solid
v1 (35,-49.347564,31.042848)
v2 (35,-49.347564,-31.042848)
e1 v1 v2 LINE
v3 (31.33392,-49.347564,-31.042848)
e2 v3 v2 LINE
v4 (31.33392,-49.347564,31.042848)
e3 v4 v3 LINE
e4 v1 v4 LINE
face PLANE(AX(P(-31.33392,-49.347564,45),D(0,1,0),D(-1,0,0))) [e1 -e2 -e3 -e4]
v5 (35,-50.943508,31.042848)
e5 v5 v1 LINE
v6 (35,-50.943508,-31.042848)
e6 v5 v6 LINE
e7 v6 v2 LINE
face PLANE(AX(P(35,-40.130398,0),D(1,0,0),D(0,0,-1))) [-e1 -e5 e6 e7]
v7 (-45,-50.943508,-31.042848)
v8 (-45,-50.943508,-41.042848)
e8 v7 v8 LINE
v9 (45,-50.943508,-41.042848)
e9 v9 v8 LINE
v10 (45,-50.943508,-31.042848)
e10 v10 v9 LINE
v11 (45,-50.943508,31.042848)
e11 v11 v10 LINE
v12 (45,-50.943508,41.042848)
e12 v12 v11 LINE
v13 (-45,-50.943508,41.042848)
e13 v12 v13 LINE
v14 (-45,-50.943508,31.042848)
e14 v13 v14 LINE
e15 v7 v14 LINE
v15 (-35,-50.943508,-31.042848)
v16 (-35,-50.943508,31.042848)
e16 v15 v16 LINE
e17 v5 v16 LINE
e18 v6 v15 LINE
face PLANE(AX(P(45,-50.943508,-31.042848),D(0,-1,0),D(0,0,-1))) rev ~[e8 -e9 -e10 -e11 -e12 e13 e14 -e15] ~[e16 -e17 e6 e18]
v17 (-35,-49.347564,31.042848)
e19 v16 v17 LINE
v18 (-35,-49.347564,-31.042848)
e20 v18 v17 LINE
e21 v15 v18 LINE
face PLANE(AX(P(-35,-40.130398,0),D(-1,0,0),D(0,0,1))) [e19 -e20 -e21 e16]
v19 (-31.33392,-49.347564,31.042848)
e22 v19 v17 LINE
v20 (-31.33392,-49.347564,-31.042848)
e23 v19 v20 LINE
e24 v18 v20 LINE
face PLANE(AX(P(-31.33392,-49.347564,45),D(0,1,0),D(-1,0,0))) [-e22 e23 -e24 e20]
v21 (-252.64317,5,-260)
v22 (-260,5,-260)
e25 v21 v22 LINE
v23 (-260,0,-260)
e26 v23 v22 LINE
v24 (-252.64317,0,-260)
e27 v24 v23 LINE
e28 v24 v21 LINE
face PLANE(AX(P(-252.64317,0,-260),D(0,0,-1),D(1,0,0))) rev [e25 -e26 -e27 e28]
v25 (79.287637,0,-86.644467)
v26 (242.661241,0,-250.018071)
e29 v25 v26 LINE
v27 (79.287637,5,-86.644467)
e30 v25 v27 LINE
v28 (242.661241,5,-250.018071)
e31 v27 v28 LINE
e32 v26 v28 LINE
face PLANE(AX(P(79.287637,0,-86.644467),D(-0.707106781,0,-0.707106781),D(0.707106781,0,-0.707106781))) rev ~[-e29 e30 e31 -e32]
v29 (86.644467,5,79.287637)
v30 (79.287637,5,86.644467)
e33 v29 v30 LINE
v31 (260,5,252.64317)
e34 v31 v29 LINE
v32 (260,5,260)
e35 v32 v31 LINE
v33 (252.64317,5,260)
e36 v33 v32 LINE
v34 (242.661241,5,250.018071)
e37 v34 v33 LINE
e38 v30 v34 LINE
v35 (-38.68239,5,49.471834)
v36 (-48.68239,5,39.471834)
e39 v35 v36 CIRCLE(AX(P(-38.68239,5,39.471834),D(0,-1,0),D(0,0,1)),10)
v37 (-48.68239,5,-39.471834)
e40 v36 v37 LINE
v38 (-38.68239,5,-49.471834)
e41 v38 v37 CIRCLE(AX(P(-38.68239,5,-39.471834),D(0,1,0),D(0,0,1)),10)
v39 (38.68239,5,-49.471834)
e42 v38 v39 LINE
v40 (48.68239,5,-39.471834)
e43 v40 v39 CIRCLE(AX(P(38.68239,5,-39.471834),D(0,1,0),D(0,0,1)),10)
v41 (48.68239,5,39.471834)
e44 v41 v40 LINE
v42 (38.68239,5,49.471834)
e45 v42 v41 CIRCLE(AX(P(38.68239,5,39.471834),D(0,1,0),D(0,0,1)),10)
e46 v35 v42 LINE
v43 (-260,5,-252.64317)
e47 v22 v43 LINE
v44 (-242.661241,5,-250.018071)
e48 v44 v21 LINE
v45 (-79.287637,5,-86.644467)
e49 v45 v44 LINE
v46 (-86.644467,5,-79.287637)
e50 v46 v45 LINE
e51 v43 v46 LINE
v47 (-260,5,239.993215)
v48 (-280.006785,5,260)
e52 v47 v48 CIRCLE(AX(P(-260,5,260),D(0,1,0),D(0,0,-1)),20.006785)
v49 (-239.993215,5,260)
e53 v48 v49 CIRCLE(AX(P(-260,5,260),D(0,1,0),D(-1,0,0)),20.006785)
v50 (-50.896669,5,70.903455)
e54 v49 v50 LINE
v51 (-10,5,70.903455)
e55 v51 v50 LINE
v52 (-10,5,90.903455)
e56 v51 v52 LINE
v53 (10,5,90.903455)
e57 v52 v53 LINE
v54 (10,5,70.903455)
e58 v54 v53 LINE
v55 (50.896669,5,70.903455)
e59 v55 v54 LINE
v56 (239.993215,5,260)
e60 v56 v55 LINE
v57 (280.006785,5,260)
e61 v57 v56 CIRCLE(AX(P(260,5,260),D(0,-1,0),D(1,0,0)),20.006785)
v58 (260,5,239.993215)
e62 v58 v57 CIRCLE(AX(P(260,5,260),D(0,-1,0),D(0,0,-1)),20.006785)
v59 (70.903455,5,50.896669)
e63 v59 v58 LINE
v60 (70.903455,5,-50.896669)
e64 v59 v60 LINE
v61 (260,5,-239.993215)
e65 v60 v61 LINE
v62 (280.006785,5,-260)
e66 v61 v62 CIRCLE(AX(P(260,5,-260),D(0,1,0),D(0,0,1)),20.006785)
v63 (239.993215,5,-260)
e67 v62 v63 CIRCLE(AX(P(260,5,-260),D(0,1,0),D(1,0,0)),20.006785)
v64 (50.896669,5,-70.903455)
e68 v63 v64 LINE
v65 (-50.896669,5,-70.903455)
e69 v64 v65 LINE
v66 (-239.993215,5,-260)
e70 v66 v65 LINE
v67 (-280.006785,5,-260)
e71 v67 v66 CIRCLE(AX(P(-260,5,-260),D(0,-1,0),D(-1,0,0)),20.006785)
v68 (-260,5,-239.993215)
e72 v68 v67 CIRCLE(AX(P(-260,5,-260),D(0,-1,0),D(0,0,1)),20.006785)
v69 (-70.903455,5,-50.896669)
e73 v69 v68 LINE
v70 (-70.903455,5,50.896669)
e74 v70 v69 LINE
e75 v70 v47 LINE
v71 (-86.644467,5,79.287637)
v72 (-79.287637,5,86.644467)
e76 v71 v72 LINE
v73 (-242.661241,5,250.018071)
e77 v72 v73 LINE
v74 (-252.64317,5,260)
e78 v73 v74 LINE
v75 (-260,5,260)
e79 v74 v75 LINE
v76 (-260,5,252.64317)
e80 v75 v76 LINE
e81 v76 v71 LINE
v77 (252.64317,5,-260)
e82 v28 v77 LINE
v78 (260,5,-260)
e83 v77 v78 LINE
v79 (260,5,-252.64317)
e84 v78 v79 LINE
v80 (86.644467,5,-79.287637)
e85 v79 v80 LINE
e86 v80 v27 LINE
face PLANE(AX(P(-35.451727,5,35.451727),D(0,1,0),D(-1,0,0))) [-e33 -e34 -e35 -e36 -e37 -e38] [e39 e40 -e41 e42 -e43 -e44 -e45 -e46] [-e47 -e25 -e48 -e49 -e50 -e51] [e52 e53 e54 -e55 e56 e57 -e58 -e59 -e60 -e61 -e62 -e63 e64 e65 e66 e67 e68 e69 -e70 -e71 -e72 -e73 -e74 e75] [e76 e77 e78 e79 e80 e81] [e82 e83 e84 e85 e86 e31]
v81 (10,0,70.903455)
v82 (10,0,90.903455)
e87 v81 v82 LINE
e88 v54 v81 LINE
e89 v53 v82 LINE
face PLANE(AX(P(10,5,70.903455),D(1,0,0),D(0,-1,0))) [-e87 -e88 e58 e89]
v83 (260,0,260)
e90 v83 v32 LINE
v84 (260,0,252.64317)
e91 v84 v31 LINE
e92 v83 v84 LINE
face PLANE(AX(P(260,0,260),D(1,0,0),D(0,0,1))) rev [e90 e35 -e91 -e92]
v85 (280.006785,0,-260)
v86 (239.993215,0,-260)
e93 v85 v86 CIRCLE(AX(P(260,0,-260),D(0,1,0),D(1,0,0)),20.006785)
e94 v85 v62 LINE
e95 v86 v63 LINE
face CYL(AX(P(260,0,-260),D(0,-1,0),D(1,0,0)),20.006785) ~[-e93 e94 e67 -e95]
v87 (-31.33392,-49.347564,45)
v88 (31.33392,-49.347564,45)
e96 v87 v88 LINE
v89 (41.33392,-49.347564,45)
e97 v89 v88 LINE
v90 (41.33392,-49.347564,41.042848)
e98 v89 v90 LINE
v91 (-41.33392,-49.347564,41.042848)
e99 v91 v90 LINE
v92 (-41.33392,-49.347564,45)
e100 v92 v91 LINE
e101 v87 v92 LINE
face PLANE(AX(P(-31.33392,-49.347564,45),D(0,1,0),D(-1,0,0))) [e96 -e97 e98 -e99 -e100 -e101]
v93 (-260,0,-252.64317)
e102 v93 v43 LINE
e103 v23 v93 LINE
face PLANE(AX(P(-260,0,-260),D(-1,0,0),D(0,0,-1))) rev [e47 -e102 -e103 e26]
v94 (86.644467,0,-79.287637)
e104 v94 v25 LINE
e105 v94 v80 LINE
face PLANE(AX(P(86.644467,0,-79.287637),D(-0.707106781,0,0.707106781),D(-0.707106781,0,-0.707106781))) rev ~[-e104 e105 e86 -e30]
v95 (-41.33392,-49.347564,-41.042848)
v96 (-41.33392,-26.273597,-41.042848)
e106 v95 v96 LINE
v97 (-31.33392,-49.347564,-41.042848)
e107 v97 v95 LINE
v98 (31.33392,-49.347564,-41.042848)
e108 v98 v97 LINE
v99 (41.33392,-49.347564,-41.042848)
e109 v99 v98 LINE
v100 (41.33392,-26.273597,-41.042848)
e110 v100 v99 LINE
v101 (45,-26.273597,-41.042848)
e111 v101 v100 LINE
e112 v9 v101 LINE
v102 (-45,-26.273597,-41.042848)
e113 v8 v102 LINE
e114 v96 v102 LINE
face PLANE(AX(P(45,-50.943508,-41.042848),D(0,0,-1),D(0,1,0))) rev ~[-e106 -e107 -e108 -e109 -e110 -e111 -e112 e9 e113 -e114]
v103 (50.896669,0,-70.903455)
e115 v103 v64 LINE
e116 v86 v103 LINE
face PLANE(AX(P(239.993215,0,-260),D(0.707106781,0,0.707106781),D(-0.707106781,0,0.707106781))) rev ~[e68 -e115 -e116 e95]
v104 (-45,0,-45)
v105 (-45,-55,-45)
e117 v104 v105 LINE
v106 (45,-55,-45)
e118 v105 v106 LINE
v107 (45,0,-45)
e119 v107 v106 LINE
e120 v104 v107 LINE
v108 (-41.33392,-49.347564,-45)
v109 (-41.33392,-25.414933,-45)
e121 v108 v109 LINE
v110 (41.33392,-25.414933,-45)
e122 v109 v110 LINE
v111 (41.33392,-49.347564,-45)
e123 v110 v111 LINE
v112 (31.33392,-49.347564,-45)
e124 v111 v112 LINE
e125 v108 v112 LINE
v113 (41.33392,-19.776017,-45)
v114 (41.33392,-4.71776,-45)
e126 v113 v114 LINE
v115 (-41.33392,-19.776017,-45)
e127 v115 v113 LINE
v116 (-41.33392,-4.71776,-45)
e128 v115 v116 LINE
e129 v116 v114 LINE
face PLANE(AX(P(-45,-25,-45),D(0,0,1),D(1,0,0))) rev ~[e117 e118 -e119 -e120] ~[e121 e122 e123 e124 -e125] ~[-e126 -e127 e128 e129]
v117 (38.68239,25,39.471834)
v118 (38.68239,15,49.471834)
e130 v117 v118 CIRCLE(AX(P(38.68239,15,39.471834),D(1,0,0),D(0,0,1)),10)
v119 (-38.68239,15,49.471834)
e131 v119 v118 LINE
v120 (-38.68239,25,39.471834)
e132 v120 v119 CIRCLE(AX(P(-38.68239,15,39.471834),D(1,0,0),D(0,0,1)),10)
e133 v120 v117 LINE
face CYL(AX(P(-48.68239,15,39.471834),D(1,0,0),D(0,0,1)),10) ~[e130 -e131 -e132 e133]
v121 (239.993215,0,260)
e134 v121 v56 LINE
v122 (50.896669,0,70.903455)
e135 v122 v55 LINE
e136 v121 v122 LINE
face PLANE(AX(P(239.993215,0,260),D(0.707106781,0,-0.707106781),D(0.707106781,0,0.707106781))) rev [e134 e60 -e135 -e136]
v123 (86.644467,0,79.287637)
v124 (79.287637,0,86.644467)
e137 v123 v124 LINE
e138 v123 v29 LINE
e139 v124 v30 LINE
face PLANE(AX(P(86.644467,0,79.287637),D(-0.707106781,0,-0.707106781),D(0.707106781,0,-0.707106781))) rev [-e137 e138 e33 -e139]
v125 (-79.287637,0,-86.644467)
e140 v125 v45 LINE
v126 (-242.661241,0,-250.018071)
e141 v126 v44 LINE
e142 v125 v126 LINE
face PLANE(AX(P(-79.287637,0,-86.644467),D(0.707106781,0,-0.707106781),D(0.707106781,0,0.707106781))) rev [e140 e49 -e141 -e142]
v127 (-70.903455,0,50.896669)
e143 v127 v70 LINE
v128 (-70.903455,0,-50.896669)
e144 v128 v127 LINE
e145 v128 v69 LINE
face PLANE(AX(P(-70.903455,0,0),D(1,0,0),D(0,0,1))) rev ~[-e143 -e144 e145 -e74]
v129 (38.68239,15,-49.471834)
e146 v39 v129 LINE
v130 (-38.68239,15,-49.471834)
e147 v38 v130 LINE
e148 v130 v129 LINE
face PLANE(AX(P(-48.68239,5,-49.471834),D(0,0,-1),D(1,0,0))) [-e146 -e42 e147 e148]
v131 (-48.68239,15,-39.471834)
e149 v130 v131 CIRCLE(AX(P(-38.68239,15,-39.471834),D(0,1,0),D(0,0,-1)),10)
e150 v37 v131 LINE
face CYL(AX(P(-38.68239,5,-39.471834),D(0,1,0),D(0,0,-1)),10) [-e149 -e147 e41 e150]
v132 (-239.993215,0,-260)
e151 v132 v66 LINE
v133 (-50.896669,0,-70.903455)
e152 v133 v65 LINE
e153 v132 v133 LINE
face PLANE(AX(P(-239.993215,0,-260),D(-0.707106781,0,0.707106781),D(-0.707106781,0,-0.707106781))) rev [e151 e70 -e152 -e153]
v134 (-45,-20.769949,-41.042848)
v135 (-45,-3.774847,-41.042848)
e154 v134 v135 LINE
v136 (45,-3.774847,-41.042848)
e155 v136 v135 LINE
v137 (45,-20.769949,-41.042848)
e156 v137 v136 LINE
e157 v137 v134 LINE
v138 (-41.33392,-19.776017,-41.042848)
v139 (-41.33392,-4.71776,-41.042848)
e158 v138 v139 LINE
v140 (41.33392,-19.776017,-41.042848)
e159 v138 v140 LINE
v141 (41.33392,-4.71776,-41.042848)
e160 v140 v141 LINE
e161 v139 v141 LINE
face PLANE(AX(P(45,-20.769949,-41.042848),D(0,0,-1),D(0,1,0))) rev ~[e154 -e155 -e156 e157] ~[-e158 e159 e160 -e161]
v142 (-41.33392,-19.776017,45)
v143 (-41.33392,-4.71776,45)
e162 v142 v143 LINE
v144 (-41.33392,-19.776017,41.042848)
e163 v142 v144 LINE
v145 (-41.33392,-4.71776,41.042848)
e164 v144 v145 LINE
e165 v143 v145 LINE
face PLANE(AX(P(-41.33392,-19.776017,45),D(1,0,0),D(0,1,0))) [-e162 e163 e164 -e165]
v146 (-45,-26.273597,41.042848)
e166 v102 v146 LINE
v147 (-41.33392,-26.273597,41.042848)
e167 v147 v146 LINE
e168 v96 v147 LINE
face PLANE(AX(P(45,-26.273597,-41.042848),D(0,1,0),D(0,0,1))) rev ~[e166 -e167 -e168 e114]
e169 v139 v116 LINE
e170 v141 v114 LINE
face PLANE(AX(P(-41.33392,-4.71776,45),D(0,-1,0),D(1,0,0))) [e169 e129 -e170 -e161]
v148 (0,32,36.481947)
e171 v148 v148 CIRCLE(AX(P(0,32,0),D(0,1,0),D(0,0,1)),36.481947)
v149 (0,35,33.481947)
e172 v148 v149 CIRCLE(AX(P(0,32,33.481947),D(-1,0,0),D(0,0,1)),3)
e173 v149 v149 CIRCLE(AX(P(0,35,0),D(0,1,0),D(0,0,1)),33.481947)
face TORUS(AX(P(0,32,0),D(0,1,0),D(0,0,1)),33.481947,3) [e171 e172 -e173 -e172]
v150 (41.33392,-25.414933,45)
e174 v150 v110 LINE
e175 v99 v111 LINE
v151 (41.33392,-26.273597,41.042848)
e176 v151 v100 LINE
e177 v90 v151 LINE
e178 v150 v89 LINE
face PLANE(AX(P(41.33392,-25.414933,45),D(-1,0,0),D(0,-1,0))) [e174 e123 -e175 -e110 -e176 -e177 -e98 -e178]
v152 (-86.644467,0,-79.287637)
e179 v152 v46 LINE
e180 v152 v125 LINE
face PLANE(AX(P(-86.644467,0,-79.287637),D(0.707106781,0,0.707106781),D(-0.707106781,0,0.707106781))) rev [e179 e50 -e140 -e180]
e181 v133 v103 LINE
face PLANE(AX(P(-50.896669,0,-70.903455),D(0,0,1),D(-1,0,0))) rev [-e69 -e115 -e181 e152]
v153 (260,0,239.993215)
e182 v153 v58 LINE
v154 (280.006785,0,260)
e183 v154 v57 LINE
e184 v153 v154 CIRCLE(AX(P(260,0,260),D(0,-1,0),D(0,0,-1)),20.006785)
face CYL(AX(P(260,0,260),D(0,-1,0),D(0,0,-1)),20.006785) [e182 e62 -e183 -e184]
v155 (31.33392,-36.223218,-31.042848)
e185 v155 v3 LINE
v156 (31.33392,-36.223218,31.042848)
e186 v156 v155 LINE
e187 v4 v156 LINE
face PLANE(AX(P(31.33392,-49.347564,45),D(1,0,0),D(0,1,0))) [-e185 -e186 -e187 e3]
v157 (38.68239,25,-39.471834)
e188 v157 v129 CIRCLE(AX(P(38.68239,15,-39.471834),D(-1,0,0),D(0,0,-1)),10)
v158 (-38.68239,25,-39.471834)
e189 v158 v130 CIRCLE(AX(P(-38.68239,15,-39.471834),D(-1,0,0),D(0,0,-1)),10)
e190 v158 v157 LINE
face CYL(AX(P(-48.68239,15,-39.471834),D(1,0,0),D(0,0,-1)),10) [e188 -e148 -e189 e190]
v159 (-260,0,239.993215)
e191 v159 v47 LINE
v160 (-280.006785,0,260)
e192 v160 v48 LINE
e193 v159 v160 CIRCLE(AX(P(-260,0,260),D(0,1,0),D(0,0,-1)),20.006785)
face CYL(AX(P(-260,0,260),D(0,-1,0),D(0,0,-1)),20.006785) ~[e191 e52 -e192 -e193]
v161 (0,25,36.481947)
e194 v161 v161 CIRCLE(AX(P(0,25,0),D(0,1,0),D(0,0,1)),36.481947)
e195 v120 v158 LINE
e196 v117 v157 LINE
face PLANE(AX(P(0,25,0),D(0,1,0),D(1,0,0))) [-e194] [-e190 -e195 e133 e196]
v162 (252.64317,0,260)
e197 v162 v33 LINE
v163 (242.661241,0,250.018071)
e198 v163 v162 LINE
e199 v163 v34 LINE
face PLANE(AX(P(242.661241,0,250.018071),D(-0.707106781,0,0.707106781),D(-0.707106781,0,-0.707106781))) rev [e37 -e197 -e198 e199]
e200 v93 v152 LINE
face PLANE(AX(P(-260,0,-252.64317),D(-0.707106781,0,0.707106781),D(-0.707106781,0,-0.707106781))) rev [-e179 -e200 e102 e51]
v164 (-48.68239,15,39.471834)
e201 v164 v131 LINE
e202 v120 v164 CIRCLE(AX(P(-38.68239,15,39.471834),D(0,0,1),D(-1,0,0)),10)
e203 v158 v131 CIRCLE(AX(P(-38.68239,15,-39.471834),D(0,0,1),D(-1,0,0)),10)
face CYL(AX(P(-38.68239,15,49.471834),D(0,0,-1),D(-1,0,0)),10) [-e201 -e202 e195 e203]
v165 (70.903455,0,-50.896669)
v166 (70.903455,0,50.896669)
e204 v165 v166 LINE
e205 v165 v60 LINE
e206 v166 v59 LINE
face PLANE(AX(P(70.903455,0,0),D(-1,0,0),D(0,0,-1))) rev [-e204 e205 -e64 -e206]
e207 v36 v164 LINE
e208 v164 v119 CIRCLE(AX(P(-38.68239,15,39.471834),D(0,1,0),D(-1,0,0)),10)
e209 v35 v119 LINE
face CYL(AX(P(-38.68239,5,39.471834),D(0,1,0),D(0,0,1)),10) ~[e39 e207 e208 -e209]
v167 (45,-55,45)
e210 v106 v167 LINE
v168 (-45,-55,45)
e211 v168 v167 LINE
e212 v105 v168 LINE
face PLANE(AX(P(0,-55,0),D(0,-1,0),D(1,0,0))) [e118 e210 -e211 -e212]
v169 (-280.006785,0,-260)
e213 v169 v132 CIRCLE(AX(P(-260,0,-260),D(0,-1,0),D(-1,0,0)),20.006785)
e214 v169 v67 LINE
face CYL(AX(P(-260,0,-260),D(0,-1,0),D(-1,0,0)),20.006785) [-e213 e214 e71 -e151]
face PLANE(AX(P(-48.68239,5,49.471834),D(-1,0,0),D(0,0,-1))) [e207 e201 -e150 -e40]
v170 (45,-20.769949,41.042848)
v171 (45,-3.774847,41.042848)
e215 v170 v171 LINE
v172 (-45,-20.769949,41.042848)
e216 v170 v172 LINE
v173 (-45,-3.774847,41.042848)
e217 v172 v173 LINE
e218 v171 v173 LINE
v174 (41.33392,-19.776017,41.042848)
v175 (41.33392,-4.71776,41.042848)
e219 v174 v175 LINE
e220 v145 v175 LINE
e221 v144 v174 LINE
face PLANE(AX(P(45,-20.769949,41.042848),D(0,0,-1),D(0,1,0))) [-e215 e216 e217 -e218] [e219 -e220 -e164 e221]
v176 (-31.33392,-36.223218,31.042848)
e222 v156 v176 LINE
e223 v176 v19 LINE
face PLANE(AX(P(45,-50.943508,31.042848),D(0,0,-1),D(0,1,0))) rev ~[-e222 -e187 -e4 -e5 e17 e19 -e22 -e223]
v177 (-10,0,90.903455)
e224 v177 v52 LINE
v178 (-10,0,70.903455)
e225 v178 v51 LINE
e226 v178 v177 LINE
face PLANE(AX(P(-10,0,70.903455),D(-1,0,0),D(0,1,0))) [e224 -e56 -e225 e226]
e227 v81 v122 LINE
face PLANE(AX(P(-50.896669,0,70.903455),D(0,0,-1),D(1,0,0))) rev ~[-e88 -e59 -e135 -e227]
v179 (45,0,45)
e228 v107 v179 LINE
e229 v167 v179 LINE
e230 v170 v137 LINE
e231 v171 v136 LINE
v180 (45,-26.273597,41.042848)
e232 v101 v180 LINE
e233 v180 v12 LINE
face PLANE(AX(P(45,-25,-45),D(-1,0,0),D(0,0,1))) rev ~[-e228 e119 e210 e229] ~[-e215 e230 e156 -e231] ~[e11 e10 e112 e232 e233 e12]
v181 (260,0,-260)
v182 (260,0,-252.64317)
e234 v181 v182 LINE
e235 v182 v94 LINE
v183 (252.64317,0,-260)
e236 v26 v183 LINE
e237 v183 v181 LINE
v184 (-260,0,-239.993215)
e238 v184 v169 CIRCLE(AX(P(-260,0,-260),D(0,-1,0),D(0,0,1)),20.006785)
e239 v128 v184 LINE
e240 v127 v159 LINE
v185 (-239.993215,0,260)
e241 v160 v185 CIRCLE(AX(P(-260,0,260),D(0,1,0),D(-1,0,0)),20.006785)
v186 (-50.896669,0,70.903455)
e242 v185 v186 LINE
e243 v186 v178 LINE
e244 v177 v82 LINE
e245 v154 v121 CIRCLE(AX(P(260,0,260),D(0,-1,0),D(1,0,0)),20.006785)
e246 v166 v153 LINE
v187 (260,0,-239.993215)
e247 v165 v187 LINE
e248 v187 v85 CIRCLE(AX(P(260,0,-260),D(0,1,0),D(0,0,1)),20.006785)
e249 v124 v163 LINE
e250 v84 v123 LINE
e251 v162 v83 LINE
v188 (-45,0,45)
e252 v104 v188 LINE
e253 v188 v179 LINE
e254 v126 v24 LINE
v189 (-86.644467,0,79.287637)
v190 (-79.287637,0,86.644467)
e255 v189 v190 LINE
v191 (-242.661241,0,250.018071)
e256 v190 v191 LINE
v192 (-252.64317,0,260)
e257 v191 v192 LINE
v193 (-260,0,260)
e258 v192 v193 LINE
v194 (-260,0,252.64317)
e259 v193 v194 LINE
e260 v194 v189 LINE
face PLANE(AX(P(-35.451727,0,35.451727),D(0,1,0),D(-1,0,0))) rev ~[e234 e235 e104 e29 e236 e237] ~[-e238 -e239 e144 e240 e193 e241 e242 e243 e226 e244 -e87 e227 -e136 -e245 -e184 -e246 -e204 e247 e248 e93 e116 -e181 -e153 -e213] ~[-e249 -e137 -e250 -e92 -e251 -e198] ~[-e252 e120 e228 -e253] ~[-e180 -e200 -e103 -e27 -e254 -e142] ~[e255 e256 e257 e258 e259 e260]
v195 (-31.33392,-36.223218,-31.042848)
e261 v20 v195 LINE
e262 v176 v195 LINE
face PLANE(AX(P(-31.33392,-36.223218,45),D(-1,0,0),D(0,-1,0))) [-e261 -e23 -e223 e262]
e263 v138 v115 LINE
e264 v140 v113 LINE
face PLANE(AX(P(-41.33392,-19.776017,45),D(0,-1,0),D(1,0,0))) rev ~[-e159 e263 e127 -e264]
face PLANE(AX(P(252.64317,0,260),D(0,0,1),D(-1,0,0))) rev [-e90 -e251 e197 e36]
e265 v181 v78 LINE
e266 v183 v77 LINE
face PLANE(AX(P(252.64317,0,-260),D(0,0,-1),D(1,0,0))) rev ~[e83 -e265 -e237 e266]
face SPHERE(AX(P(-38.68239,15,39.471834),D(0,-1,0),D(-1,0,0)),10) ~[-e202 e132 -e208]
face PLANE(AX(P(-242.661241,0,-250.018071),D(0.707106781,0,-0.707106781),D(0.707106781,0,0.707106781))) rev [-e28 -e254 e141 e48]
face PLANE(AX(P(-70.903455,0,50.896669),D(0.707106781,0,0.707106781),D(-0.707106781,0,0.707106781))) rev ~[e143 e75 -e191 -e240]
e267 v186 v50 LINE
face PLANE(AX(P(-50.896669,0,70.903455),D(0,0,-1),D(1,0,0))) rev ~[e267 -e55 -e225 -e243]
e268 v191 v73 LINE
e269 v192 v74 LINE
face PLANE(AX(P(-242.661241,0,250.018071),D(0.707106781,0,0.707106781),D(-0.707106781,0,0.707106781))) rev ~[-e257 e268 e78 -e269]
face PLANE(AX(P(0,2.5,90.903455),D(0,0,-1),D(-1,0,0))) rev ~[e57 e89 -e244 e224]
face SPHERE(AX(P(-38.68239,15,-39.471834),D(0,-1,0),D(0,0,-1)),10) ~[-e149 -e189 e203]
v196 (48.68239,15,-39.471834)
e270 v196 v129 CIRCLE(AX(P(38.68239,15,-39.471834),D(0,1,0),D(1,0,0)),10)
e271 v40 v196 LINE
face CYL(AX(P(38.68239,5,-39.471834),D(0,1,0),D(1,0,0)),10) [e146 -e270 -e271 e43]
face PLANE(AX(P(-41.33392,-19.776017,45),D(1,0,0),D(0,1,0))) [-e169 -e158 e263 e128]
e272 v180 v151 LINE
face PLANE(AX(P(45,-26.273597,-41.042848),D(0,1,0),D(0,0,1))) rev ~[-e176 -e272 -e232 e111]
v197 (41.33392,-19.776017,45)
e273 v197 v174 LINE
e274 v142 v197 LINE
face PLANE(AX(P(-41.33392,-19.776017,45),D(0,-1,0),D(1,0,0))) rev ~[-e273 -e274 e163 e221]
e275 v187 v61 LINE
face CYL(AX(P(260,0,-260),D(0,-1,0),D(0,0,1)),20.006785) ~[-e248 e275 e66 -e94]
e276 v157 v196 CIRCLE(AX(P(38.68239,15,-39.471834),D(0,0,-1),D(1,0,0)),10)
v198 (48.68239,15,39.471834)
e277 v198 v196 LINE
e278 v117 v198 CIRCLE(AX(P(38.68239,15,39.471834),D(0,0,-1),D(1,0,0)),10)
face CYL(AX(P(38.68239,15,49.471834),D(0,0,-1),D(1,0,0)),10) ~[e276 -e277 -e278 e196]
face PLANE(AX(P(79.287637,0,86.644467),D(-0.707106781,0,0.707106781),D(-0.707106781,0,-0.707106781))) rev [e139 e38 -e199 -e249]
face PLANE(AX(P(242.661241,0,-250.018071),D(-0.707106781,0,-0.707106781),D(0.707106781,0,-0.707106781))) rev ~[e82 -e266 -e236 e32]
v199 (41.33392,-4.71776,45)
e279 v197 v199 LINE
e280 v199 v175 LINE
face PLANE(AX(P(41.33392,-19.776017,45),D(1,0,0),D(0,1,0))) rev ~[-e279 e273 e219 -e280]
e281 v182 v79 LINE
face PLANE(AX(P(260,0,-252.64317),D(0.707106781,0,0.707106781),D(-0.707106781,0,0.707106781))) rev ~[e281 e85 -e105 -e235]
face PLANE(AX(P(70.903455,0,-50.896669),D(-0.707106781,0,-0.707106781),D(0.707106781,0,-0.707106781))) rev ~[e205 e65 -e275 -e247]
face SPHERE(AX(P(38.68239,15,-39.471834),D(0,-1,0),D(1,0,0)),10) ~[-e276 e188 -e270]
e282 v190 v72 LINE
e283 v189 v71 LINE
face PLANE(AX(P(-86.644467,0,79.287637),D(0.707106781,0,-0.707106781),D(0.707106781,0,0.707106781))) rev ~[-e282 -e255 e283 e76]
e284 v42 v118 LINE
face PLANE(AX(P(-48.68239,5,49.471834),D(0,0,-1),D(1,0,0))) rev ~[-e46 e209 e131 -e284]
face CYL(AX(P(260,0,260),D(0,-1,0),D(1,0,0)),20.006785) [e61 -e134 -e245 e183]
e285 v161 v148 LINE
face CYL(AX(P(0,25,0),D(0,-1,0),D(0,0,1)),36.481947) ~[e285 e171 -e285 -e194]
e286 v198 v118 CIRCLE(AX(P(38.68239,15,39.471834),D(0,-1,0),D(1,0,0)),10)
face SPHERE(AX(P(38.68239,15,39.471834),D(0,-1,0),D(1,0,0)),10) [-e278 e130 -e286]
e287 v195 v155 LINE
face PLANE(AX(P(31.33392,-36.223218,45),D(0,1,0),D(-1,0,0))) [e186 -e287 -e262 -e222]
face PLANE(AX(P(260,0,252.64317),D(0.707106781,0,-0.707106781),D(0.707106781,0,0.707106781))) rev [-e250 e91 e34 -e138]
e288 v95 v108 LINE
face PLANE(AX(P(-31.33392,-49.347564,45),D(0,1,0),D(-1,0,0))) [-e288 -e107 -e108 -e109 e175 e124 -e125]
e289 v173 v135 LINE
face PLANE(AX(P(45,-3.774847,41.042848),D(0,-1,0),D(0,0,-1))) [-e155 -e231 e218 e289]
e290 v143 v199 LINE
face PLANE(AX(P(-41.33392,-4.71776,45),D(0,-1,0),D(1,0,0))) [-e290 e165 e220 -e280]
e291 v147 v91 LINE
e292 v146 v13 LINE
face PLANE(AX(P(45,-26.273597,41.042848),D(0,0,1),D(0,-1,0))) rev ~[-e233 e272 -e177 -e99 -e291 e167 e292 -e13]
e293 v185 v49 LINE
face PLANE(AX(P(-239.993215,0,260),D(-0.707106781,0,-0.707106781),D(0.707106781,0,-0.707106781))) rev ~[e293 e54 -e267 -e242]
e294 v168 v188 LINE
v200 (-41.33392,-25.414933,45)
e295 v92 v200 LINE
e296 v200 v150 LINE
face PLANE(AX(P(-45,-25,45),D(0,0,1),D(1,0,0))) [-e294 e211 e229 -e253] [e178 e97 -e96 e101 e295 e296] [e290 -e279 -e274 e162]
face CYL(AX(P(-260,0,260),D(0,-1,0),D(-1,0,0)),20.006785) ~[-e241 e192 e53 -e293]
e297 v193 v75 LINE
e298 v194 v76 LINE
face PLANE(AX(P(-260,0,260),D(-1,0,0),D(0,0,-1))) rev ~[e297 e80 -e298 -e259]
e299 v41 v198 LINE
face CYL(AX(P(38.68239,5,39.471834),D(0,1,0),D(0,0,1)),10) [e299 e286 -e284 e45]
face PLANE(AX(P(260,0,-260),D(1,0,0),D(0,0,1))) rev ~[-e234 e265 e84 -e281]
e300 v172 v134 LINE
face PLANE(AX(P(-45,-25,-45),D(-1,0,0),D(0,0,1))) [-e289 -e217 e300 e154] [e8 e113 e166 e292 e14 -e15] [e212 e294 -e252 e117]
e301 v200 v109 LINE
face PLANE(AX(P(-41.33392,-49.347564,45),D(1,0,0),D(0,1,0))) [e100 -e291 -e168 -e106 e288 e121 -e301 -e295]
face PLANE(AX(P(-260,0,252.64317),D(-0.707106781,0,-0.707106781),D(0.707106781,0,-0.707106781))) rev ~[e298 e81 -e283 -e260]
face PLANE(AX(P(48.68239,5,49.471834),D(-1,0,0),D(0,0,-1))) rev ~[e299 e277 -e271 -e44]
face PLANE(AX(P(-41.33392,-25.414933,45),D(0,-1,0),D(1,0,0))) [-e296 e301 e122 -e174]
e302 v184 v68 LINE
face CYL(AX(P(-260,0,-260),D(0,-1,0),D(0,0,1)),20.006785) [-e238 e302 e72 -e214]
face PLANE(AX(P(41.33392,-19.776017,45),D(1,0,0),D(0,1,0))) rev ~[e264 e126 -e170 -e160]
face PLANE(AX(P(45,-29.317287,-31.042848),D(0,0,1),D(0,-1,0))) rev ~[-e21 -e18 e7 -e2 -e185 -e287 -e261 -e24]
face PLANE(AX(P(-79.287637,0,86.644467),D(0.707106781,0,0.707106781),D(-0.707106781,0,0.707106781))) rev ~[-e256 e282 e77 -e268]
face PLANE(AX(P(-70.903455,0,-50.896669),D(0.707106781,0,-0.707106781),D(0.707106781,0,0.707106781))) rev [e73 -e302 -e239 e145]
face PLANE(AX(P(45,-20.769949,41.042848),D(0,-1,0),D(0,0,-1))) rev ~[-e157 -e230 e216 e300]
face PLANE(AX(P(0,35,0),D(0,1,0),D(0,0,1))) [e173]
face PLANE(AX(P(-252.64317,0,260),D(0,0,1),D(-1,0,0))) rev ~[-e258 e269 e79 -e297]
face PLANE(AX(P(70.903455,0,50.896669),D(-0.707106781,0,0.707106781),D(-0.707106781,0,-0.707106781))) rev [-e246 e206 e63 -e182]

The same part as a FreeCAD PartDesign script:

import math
import FreeCAD as App
import Part
import Sketcher

V = App.Vector
Q = App.Units.Quantity


def edges_at(feature, points):
    """Names of the edges that pass closest to the given points."""
    edges = feature.Shape.Edges
    near = lambda p: min(range(len(edges)), key=lambda i: edges[i].distToShape(Part.Vertex(*p))[0])
    return sorted({f"Edge{near(p) + 1}" for p in points})

doc = App.newDocument("Part")
body = doc.addObject("PartDesign::Body", "Body")

# Sketch on XZ plane
sketch1 = body.newObject("Sketcher::SketchObject", "Sketch")
sketch1.AttachmentSupport = (doc.getObject("XZ_Plane"), [""])
sketch1.MapMode = "FlatFace"
sketch1.addGeometry([
    Part.LineSegment(V(70.903455, -50.896669, 0), V(260, -239.993215, 0)),  # 0
    Part.ArcOfCircle(Part.Circle(V(260, -260, 0), V(0, 0, 1), 20.006785), math.radians(0), math.radians(90)),  # 1
    Part.ArcOfCircle(Part.Circle(V(260, -260, 0), V(0, 0, 1), 20.006785), math.radians(180), math.radians(360)),  # 2
    Part.LineSegment(V(239.993215, -260, 0), V(50.896669, -70.903455, 0)),  # 3
    Part.LineSegment(V(50.896669, -70.903455, 0), V(0, -70.903455, 0)),  # 4
    Part.LineSegment(V(0, -70.903455, 0), V(0, 0, 0)),  # 5
    Part.LineSegment(V(0, 0, 0), V(70.903455, 0, 0)),  # 6
    Part.LineSegment(V(70.903455, 0, 0), V(70.903455, -50.896669, 0)),  # 7
    Part.LineSegment(V(260, -260, 0), V(260, -252.64317, 0)),  # 8
    Part.LineSegment(V(260, -252.64317, 0), V(86.644467, -79.287637, 0)),  # 9
    Part.LineSegment(V(86.644467, -79.287637, 0), V(79.287637, -86.644467, 0)),  # 10
    Part.LineSegment(V(79.287637, -86.644467, 0), V(242.661241, -250.018071, 0)),  # 11
    Part.LineSegment(V(242.661241, -250.018071, 0), V(252.64317, -260, 0)),  # 12
    Part.LineSegment(V(252.64317, -260, 0), V(260, -260, 0)),  # 13
], False)
sketch1.addConstraint([
    Sketcher.Constraint("Coincident", 0, 2, 1, 2),
    Sketcher.Constraint("Tangent", 1, 1, 2, 2),
    Sketcher.Constraint("Coincident", 2, 1, 3, 1),
    Sketcher.Constraint("Coincident", 3, 2, 4, 1),
    Sketcher.Constraint("Coincident", 4, 2, 5, 1),
    Sketcher.Constraint("Coincident", 5, 2, 6, 1),
    Sketcher.Constraint("Coincident", 6, 2, 7, 1),
    Sketcher.Constraint("Coincident", 7, 2, 0, 1),
    Sketcher.Constraint("Coincident", 8, 2, 9, 1),
    Sketcher.Constraint("Coincident", 9, 2, 10, 1),
    Sketcher.Constraint("Coincident", 10, 2, 11, 1),
    Sketcher.Constraint("Coincident", 11, 2, 12, 1),
    Sketcher.Constraint("Coincident", 12, 2, 13, 1),
    Sketcher.Constraint("Coincident", 13, 2, 8, 1),
    Sketcher.Constraint("Horizontal", 4),
    Sketcher.Constraint("Vertical", 5),
    Sketcher.Constraint("Horizontal", 6),
    Sketcher.Constraint("Vertical", 7),
    Sketcher.Constraint("Vertical", 8),
    Sketcher.Constraint("Horizontal", 13),
    Sketcher.Constraint("Coincident", 5, 2, -1, 1),
    Sketcher.Constraint("Coincident", 13, 2, 1, 3),
    Sketcher.Constraint("Equal", 1, 2),
    Sketcher.Constraint("Parallel", 0, 3),
    Sketcher.Constraint("Parallel", 3, 9),
    Sketcher.Constraint("Perpendicular", 9, 10),
    Sketcher.Constraint("Perpendicular", 10, 11),
    Sketcher.Constraint("Parallel", 11, 12),
    Sketcher.Constraint("Horizontal", 2, 3, 1, 1),
    Sketcher.Constraint("Horizontal", 1, 1, 2, 1),
    Sketcher.Constraint("Vertical", 2, 3, 0, 2),
    Sketcher.Constraint("Equal", 6, 5),
    Sketcher.Constraint("Equal", 4, 7),
    Sketcher.Constraint("Equal", 13, 8),
    Sketcher.Constraint("Angle", 0, Q("-45 deg")),
    Sketcher.Constraint("DistanceX", -1, 1, 1, 3, Q("260 mm")),
    Sketcher.Constraint("Radius", 1, Q("20.006785 mm")),
    Sketcher.Constraint("Distance", 0, Q("267.422899 mm")),
    Sketcher.Constraint("DistanceX", 13, 1, 13, 2, Q("7.35683 mm")),
    Sketcher.Constraint("DistanceY", 8, 2, 11, 2, Q("2.625098 mm")),
    Sketcher.Constraint("Distance", 9, Q("245.161746 mm")),
])
pad1 = body.newObject("PartDesign::Pad", "Pad")
pad1.Profile = sketch1
pad1.Length = 5
pad1.Reversed = True
doc.recompute()

mirrored = body.newObject("PartDesign::Mirrored", "Mirrored")
mirrored.Originals = [pad1]
mirrored.MirrorPlane = (doc.getObject("YZ_Plane"), [""])
body.Tip = mirrored
body2 = doc.addObject("PartDesign::Body", "Body001")
doc.recompute()

body2.BaseFeature = body
doc.recompute()

mirroring = doc.addObject("Part::Mirroring", "Mirroring")
mirroring.Source = body
mirroring.Base = V(0, 5, 0)
mirroring.Normal = V(0, 0, -1)
body3 = doc.addObject("PartDesign::Body", "Body002")
body3.BaseFeature = mirroring
boolean = body2.newObject("PartDesign::Boolean", "Boolean")
boolean.Type = "Fuse"
boolean.addObjects([body3])
doc.recompute()

# Sketch on XZ plane
sketch2 = body2.newObject("Sketcher::SketchObject", "Sketch001")
sketch2.AttachmentSupport = (doc.getObject("XZ_Plane001"), [""])
sketch2.MapMode = "FlatFace"
sketch2.addGeometry([
    Part.LineSegment(V(-45, 45, 0), V(-45, -45, 0)),
    Part.LineSegment(V(-45, -45, 0), V(45, -45, 0)),
    Part.LineSegment(V(45, -45, 0), V(45, 45, 0)),
    Part.LineSegment(V(45, 45, 0), V(-45, 45, 0)),
], False)
sketch2.addConstraint([
    Sketcher.Constraint("Coincident", 0, 2, 1, 1),
    Sketcher.Constraint("Coincident", 1, 2, 2, 1),
    Sketcher.Constraint("Coincident", 2, 2, 3, 1),
    Sketcher.Constraint("Coincident", 3, 2, 0, 1),
    Sketcher.Constraint("Vertical", 0),
    Sketcher.Constraint("Horizontal", 1),
    Sketcher.Constraint("Vertical", 2),
    Sketcher.Constraint("Horizontal", 3),
    Sketcher.Constraint("Symmetric", 0, 2, 2, 2, -1, 1),
    Sketcher.Constraint("Equal", 3, 0),
    Sketcher.Constraint("DistanceX", 1, 1, 1, 2, Q("90 mm")),
])
pad2 = body2.newObject("PartDesign::Pad", "Pad001")
pad2.Profile = sketch2
pad2.Length = 25

# Sketch on XY plane
sketch3 = body2.newObject("Sketcher::SketchObject", "Sketch002")
sketch3.AttachmentSupport = (doc.getObject("XY_Plane001"), [""])
sketch3.MapMode = "FlatFace"
sketch3.AttachmentOffset = App.Placement(V(0, 0, 45), App.Rotation())
sketch3.addGeometry([
    Part.LineSegment(V(-41.33392, -4.71776, 0), V(-41.33392, -19.776017, 0)),
    Part.LineSegment(V(-41.33392, -19.776017, 0), V(41.33392, -19.776017, 0)),
    Part.LineSegment(V(41.33392, -19.776017, 0), V(41.33392, -4.71776, 0)),
    Part.LineSegment(V(41.33392, -4.71776, 0), V(-41.33392, -4.71776, 0)),
], False)
sketch3.addConstraint([
    Sketcher.Constraint("Coincident", 0, 2, 1, 1),
    Sketcher.Constraint("Coincident", 1, 2, 2, 1),
    Sketcher.Constraint("Coincident", 2, 2, 3, 1),
    Sketcher.Constraint("Coincident", 3, 2, 0, 1),
    Sketcher.Constraint("Vertical", 0),
    Sketcher.Constraint("Horizontal", 1),
    Sketcher.Constraint("Vertical", 2),
    Sketcher.Constraint("Horizontal", 3),
    Sketcher.Constraint("DistanceX", 1, 1, 1, 2, Q("82.66784 mm")),
    Sketcher.Constraint("DistanceY", 0, 2, 0, 1, Q("15.058257 mm")),
    Sketcher.Constraint("DistanceX", 0, 2, -1, 1, Q("41.33392 mm")),
    Sketcher.Constraint("DistanceY", 2, 2, -1, 1, Q("4.71776 mm")),
])
pocket1 = body2.newObject("PartDesign::Pocket", "Pocket")
pocket1.Profile = sketch3
pocket1.Length = 90

# Sketch on YZ plane
sketch4 = body2.newObject("Sketcher::SketchObject", "Sketch003")
sketch4.AttachmentSupport = (doc.getObject("YZ_Plane001"), [""])
sketch4.MapMode = "FlatFace"
sketch4.AttachmentOffset = App.Placement(V(0, 0, 45), App.Rotation())
sketch4.addGeometry([
    Part.LineSegment(V(-3.774847, 41.042848, 0), V(-20.769949, 41.042848, 0)),
    Part.LineSegment(V(-20.769949, 41.042848, 0), V(-20.769949, -41.042848, 0)),
    Part.LineSegment(V(-20.769949, -41.042848, 0), V(-3.774847, -41.042848, 0)),
    Part.LineSegment(V(-3.774847, -41.042848, 0), V(-3.774847, 41.042848, 0)),
], False)
sketch4.addConstraint([
    Sketcher.Constraint("Coincident", 0, 2, 1, 1),
    Sketcher.Constraint("Coincident", 1, 2, 2, 1),
    Sketcher.Constraint("Coincident", 2, 2, 3, 1),
    Sketcher.Constraint("Coincident", 3, 2, 0, 1),
    Sketcher.Constraint("Horizontal", 0),
    Sketcher.Constraint("Vertical", 1),
    Sketcher.Constraint("Horizontal", 2),
    Sketcher.Constraint("Vertical", 3),
    Sketcher.Constraint("DistanceX", 0, 2, 0, 1, Q("16.995102 mm")),
    Sketcher.Constraint("DistanceY", 1, 2, 1, 1, Q("82.085696 mm")),
    Sketcher.Constraint("DistanceX", 0, 2, -1, 1, Q("20.769949 mm")),
    Sketcher.Constraint("DistanceY", -1, 1, 0, 2, Q("41.042848 mm")),
])
pocket2 = body2.newObject("PartDesign::Pocket", "Pocket001")
pocket2.Profile = sketch4
pocket2.Length = 90

# Sketch on XZ plane
sketch5 = body2.newObject("Sketcher::SketchObject", "Sketch004")
sketch5.AttachmentSupport = (doc.getObject("XZ_Plane001"), [""])
sketch5.MapMode = "FlatFace"
sketch5.AttachmentOffset = App.Placement(V(0, 0, -5), App.Rotation())
sketch5.addGeometry([
    Part.LineSegment(V(-48.68239, -49.471834, 0), V(-48.68239, 49.471834, 0)),
    Part.LineSegment(V(-48.68239, 49.471834, 0), V(48.68239, 49.471834, 0)),
    Part.LineSegment(V(48.68239, 49.471834, 0), V(48.68239, -49.471834, 0)),
    Part.LineSegment(V(48.68239, -49.471834, 0), V(-48.68239, -49.471834, 0)),
], False)
sketch5.addConstraint([
    Sketcher.Constraint("Coincident", 0, 2, 1, 1),
    Sketcher.Constraint("Coincident", 1, 2, 2, 1),
    Sketcher.Constraint("Coincident", 2, 2, 3, 1),
    Sketcher.Constraint("Coincident", 3, 2, 0, 1),
    Sketcher.Constraint("Vertical", 0),
    Sketcher.Constraint("Horizontal", 1),
    Sketcher.Constraint("Vertical", 2),
    Sketcher.Constraint("Horizontal", 3),
    Sketcher.Constraint("Symmetric", 0, 2, 2, 2, -1, 1),
    Sketcher.Constraint("DistanceX", 1, 1, 1, 2, Q("97.36478 mm")),
    Sketcher.Constraint("DistanceY", 0, 1, 0, 2, Q("98.943668 mm")),
])
pad3 = body2.newObject("PartDesign::Pad", "Pad002")
pad3.Profile = sketch5
pad3.Length = 20
pad3.Reversed = True
doc.recompute()

fillet = body2.newObject("PartDesign::Fillet", "Fillet")
fillet.Base = (pad3, edges_at(pad3, [
    (48.682, 15, 49.472),
    (48.682, 15, -49.472),
    (-48.682, 15, -49.472),
    (-48.682, 15, 49.472),
    (48.682, 25, 0),
    (0, 25, -49.472),
    (-48.682, 25, 0),
    (0, 25, 49.472),
]))
fillet.Radius = 10

# Sketch on XZ plane
sketch6 = body2.newObject("Sketcher::SketchObject", "Sketch005")
sketch6.AttachmentSupport = (doc.getObject("XZ_Plane001"), [""])
sketch6.MapMode = "FlatFace"
sketch6.AttachmentOffset = App.Placement(V(0, 0, 25), App.Rotation())
sketch6.addGeometry([
    Part.LineSegment(V(-45, 45, 0), V(-45, -45, 0)),
    Part.LineSegment(V(-45, -45, 0), V(45, -45, 0)),
    Part.LineSegment(V(45, -45, 0), V(45, 45, 0)),
    Part.LineSegment(V(45, 45, 0), V(-45, 45, 0)),
], False)
sketch6.addConstraint([
    Sketcher.Constraint("Coincident", 0, 2, 1, 1),
    Sketcher.Constraint("Coincident", 1, 2, 2, 1),
    Sketcher.Constraint("Coincident", 2, 2, 3, 1),
    Sketcher.Constraint("Coincident", 3, 2, 0, 1),
    Sketcher.Constraint("Vertical", 0),
    Sketcher.Constraint("Horizontal", 1),
    Sketcher.Constraint("Vertical", 2),
    Sketcher.Constraint("Horizontal", 3),
    Sketcher.Constraint("Symmetric", 0, 2, 2, 2, -1, 1),
    Sketcher.Constraint("Equal", 3, 0),
    Sketcher.Constraint("DistanceX", 1, 1, 1, 2, Q("90 mm")),
])
pad4 = body2.newObject("PartDesign::Pad", "Pad003")
pad4.Profile = sketch6
pad4.Length = 30

# Sketch on XY plane
sketch7 = body2.newObject("Sketcher::SketchObject", "Sketch006")
sketch7.AttachmentSupport = (doc.getObject("XY_Plane001"), [""])
sketch7.MapMode = "FlatFace"
sketch7.AttachmentOffset = App.Placement(V(0, 0, 45), App.Rotation())
sketch7.addGeometry([
    Part.LineSegment(V(41.33392, -25.414933, 0), V(-41.33392, -25.414933, 0)),  # 0
    Part.LineSegment(V(-41.33392, -25.414933, 0), V(-41.33392, -49.347564, 0)),  # 1
    Part.LineSegment(V(-41.33392, -49.347564, 0), V(-31.33392, -49.347564, 0)),  # 2
    Part.LineSegment(V(-31.33392, -49.347564, 0), V(-31.33392, -36.223218, 0)),  # 3
    Part.LineSegment(V(-31.33392, -36.223218, 0), V(31.33392, -36.223218, 0)),  # 4
    Part.LineSegment(V(31.33392, -36.223218, 0), V(31.33392, -49.347564, 0)),  # 5
    Part.LineSegment(V(31.33392, -49.347564, 0), V(41.33392, -49.347564, 0)),  # 6
    Part.LineSegment(V(41.33392, -49.347564, 0), V(41.33392, -25.414933, 0)),  # 7
], False)
sketch7.addConstraint([
    Sketcher.Constraint("Coincident", 0, 2, 1, 1),
    Sketcher.Constraint("Coincident", 1, 2, 2, 1),
    Sketcher.Constraint("Coincident", 2, 2, 3, 1),
    Sketcher.Constraint("Coincident", 3, 2, 4, 1),
    Sketcher.Constraint("Coincident", 4, 2, 5, 1),
    Sketcher.Constraint("Coincident", 5, 2, 6, 1),
    Sketcher.Constraint("Coincident", 6, 2, 7, 1),
    Sketcher.Constraint("Coincident", 7, 2, 0, 1),
    Sketcher.Constraint("Horizontal", 0),
    Sketcher.Constraint("Vertical", 1),
    Sketcher.Constraint("Horizontal", 2),
    Sketcher.Constraint("Vertical", 3),
    Sketcher.Constraint("Horizontal", 4),
    Sketcher.Constraint("Vertical", 5),
    Sketcher.Constraint("Horizontal", 6),
    Sketcher.Constraint("Vertical", 7),
    Sketcher.Constraint("Symmetric", 2, 2, 5, 2, -2),
    Sketcher.Constraint("Equal", 2, 6),
    Sketcher.Constraint("DistanceX", 2, 1, 2, 2, Q("10 mm")),
    Sketcher.Constraint("DistanceX", 0, 2, 0, 1, Q("82.66784 mm")),
    Sketcher.Constraint("DistanceY", 1, 2, 1, 1, Q("23.932632 mm")),
    Sketcher.Constraint("DistanceY", 3, 1, 3, 2, Q("13.124346 mm")),
    Sketcher.Constraint("DistanceY", 0, 2, -1, 1, Q("25.414933 mm")),
])
pocket3 = body2.newObject("PartDesign::Pocket", "Pocket002")
pocket3.Profile = sketch7
pocket3.Length = 90

# Sketch on XY plane
sketch8 = body2.newObject("Sketcher::SketchObject", "Sketch007")
sketch8.AttachmentSupport = (doc.getObject("XY_Plane001"), [""])
sketch8.MapMode = "FlatFace"
sketch8.AttachmentOffset = App.Placement(V(0, 0, 45), App.Rotation())
sketch8.addGeometry([
    Part.LineSegment(V(-31.33392, -36.223218, 0), V(-31.33392, -49.347564, 0)),
    Part.LineSegment(V(-31.33392, -49.347564, 0), V(31.33392, -49.347564, 0)),
    Part.LineSegment(V(31.33392, -49.347564, 0), V(31.33392, -36.223218, 0)),
    Part.LineSegment(V(31.33392, -36.223218, 0), V(-31.33392, -36.223218, 0)),
], False)
sketch8.addConstraint([
    Sketcher.Constraint("Coincident", 0, 2, 1, 1),
    Sketcher.Constraint("Coincident", 1, 2, 2, 1),
    Sketcher.Constraint("Coincident", 2, 2, 3, 1),
    Sketcher.Constraint("Coincident", 3, 2, 0, 1),
    Sketcher.Constraint("Vertical", 0),
    Sketcher.Constraint("Horizontal", 1),
    Sketcher.Constraint("Vertical", 2),
    Sketcher.Constraint("Horizontal", 3),
    Sketcher.Constraint("DistanceX", 1, 1, 1, 2, Q("62.66784 mm")),
    Sketcher.Constraint("DistanceY", 0, 2, 0, 1, Q("13.124346 mm")),
    Sketcher.Constraint("DistanceX", 0, 2, -1, 1, Q("31.33392 mm")),
    Sketcher.Constraint("DistanceY", 0, 2, -1, 1, Q("49.347564 mm")),
])
pocket4 = body2.newObject("PartDesign::Pocket", "Pocket003")
pocket4.Profile = sketch8
pocket4.Length = 10

# Sketch on YZ plane
sketch9 = body2.newObject("Sketcher::SketchObject", "Sketch008")
sketch9.AttachmentSupport = (doc.getObject("YZ_Plane001"), [""])
sketch9.MapMode = "FlatFace"
sketch9.AttachmentOffset = App.Placement(V(0, 0, 45), App.Rotation())
sketch9.addGeometry([
    Part.LineSegment(V(-26.273597, 41.042848, 0), V(-50.943508, 41.042848, 0)),  # 0
    Part.LineSegment(V(-50.943508, 41.042848, 0), V(-50.943508, 31.042848, 0)),  # 1
    Part.LineSegment(V(-50.943508, 31.042848, 0), V(-29.317287, 31.042848, 0)),  # 2
    Part.LineSegment(V(-29.317287, 31.042848, 0), V(-29.317287, -31.042848, 0)),  # 3
    Part.LineSegment(V(-29.317287, -31.042848, 0), V(-50.943508, -31.042848, 0)),  # 4
    Part.LineSegment(V(-50.943508, -31.042848, 0), V(-50.943508, -41.042848, 0)),  # 5
    Part.LineSegment(V(-50.943508, -41.042848, 0), V(-26.273597, -41.042848, 0)),  # 6
    Part.LineSegment(V(-26.273597, -41.042848, 0), V(-26.273597, 41.042848, 0)),  # 7
], False)
sketch9.addConstraint([
    Sketcher.Constraint("Coincident", 0, 2, 1, 1),
    Sketcher.Constraint("Coincident", 1, 2, 2, 1),
    Sketcher.Constraint("Coincident", 2, 2, 3, 1),
    Sketcher.Constraint("Coincident", 3, 2, 4, 1),
    Sketcher.Constraint("Coincident", 4, 2, 5, 1),
    Sketcher.Constraint("Coincident", 5, 2, 6, 1),
    Sketcher.Constraint("Coincident", 6, 2, 7, 1),
    Sketcher.Constraint("Coincident", 7, 2, 0, 1),
    Sketcher.Constraint("Horizontal", 0),
    Sketcher.Constraint("Vertical", 1),
    Sketcher.Constraint("Horizontal", 2),
    Sketcher.Constraint("Vertical", 3),
    Sketcher.Constraint("Horizontal", 4),
    Sketcher.Constraint("Vertical", 5),
    Sketcher.Constraint("Horizontal", 6),
    Sketcher.Constraint("Vertical", 7),
    Sketcher.Constraint("Symmetric", 1, 2, 4, 2, -1),
    Sketcher.Constraint("Equal", 1, 5),
    Sketcher.Constraint("DistanceY", 1, 2, 1, 1, Q("10 mm")),
    Sketcher.Constraint("DistanceX", 0, 2, 0, 1, Q("24.669911 mm")),
    Sketcher.Constraint("DistanceX", 2, 1, 2, 2, Q("21.626221 mm")),
    Sketcher.Constraint("DistanceY", 3, 2, 3, 1, Q("62.085696 mm")),
    Sketcher.Constraint("DistanceX", 0, 2, -1, 1, Q("50.943508 mm")),
])
pocket5 = body2.newObject("PartDesign::Pocket", "Pocket004")
pocket5.Profile = sketch9
pocket5.Length = 90

# Sketch on YZ plane
sketch10 = body2.newObject("Sketcher::SketchObject", "Sketch009")
sketch10.AttachmentSupport = (doc.getObject("YZ_Plane001"), [""])
sketch10.MapMode = "FlatFace"
sketch10.AttachmentOffset = App.Placement(V(0, 0, 45), App.Rotation())
sketch10.addGeometry([
    Part.LineSegment(V(-29.317287, 31.042848, 0), V(-50.943508, 31.042848, 0)),
    Part.LineSegment(V(-50.943508, 31.042848, 0), V(-50.943508, -31.042848, 0)),
    Part.LineSegment(V(-50.943508, -31.042848, 0), V(-29.317287, -31.042848, 0)),
    Part.LineSegment(V(-29.317287, -31.042848, 0), V(-29.317287, 31.042848, 0)),
], False)
sketch10.addConstraint([
    Sketcher.Constraint("Coincident", 0, 2, 1, 1),
    Sketcher.Constraint("Coincident", 1, 2, 2, 1),
    Sketcher.Constraint("Coincident", 2, 2, 3, 1),
    Sketcher.Constraint("Coincident", 3, 2, 0, 1),
    Sketcher.Constraint("Horizontal", 0),
    Sketcher.Constraint("Vertical", 1),
    Sketcher.Constraint("Horizontal", 2),
    Sketcher.Constraint("Vertical", 3),
    Sketcher.Constraint("DistanceX", 0, 2, 0, 1, Q("21.626221 mm")),
    Sketcher.Constraint("DistanceY", 1, 2, 1, 1, Q("62.085696 mm")),
    Sketcher.Constraint("DistanceX", 0, 2, -1, 1, Q("50.943508 mm")),
    Sketcher.Constraint("DistanceY", -1, 1, 0, 2, Q("31.042848 mm")),
])
pocket6 = body2.newObject("PartDesign::Pocket", "Pocket005")
pocket6.Profile = sketch10
pocket6.Length = 10

# Sketch on XY plane
sketch11 = body2.newObject("Sketcher::SketchObject", "Sketch010")
sketch11.AttachmentSupport = (doc.getObject("XY_Plane001"), [""])
sketch11.MapMode = "FlatFace"
sketch11.AttachmentOffset = App.Placement(V(0, 0, -45), App.Rotation())
sketch11.addGeometry([
    Part.LineSegment(V(31.33392, -36.223218, 0), V(31.33392, -49.347564, 0)),
    Part.LineSegment(V(31.33392, -49.347564, 0), V(-31.33392, -49.347564, 0)),
    Part.LineSegment(V(-31.33392, -49.347564, 0), V(-31.33392, -36.223218, 0)),
    Part.LineSegment(V(-31.33392, -36.223218, 0), V(31.33392, -36.223218, 0)),
], False)
sketch11.addConstraint([
    Sketcher.Constraint("Coincident", 0, 2, 1, 1),
    Sketcher.Constraint("Coincident", 1, 2, 2, 1),
    Sketcher.Constraint("Coincident", 2, 2, 3, 1),
    Sketcher.Constraint("Coincident", 3, 2, 0, 1),
    Sketcher.Constraint("Vertical", 0),
    Sketcher.Constraint("Horizontal", 1),
    Sketcher.Constraint("Vertical", 2),
    Sketcher.Constraint("Horizontal", 3),
    Sketcher.Constraint("DistanceX", 1, 2, 1, 1, Q("62.66784 mm")),
    Sketcher.Constraint("DistanceY", 0, 2, 0, 1, Q("13.124346 mm")),
    Sketcher.Constraint("DistanceX", -1, 1, 0, 2, Q("31.33392 mm")),
    Sketcher.Constraint("DistanceY", 0, 2, -1, 1, Q("49.347564 mm")),
])
pocket7 = body2.newObject("PartDesign::Pocket", "Pocket006")
pocket7.Profile = sketch11
pocket7.Length = 10
pocket7.Reversed = True

# Sketch on YZ plane
sketch12 = body2.newObject("Sketcher::SketchObject", "Sketch011")
sketch12.AttachmentSupport = (doc.getObject("YZ_Plane001"), [""])
sketch12.MapMode = "FlatFace"
sketch12.AttachmentOffset = App.Placement(V(0, 0, -45), App.Rotation())
sketch12.addGeometry([
    Part.LineSegment(V(-29.317287, -31.042848, 0), V(-50.943508, -31.042848, 0)),
    Part.LineSegment(V(-50.943508, -31.042848, 0), V(-50.943508, 31.042848, 0)),
    Part.LineSegment(V(-50.943508, 31.042848, 0), V(-29.317287, 31.042848, 0)),
    Part.LineSegment(V(-29.317287, 31.042848, 0), V(-29.317287, -31.042848, 0)),
], False)
sketch12.addConstraint([
    Sketcher.Constraint("Coincident", 0, 2, 1, 1),
    Sketcher.Constraint("Coincident", 1, 2, 2, 1),
    Sketcher.Constraint("Coincident", 2, 2, 3, 1),
    Sketcher.Constraint("Coincident", 3, 2, 0, 1),
    Sketcher.Constraint("Horizontal", 0),
    Sketcher.Constraint("Vertical", 1),
    Sketcher.Constraint("Horizontal", 2),
    Sketcher.Constraint("Vertical", 3),
    Sketcher.Constraint("DistanceX", 0, 2, 0, 1, Q("21.626221 mm")),
    Sketcher.Constraint("DistanceY", 1, 1, 1, 2, Q("62.085696 mm")),
    Sketcher.Constraint("DistanceX", 0, 2, -1, 1, Q("50.943508 mm")),
    Sketcher.Constraint("DistanceY", 0, 2, -1, 1, Q("31.042848 mm")),
])
pocket8 = body2.newObject("PartDesign::Pocket", "Pocket007")
pocket8.Profile = sketch12
pocket8.Length = 10
pocket8.Reversed = True

# Sketch on XY plane
sketch13 = body2.newObject("Sketcher::SketchObject", "Sketch012")
sketch13.AttachmentSupport = (doc.getObject("XY_Plane001"), [""])
sketch13.MapMode = "FlatFace"
sketch13.AttachmentOffset = App.Placement(V(0, 0, 70.903455), App.Rotation())
sketch13.addGeometry([
    Part.LineSegment(V(-10, 0, 0), V(10, 0, 0)),
    Part.LineSegment(V(10, 0, 0), V(10, 5, 0)),
    Part.LineSegment(V(10, 5, 0), V(-10, 5, 0)),
    Part.LineSegment(V(-10, 5, 0), V(-10, 0, 0)),
], False)
sketch13.addConstraint([
    Sketcher.Constraint("Coincident", 0, 2, 1, 1),
    Sketcher.Constraint("Coincident", 1, 2, 2, 1),
    Sketcher.Constraint("Coincident", 2, 2, 3, 1),
    Sketcher.Constraint("Coincident", 3, 2, 0, 1),
    Sketcher.Constraint("Horizontal", 0),
    Sketcher.Constraint("Vertical", 1),
    Sketcher.Constraint("Horizontal", 2),
    Sketcher.Constraint("Vertical", 3),
    Sketcher.Constraint("Symmetric", 0, 2, 3, 2, -1, 1),
    Sketcher.Constraint("DistanceX", 0, 1, 0, 2, Q("20 mm")),
    Sketcher.Constraint("DistanceY", 1, 1, 1, 2, Q("5 mm")),
])
pad5 = body2.newObject("PartDesign::Pad", "Pad004")
pad5.Profile = sketch13
pad5.Length = 20

# Sketch on XZ plane
sketch14 = body2.newObject("Sketcher::SketchObject", "Sketch013")
sketch14.AttachmentSupport = (doc.getObject("XZ_Plane001"), [""])
sketch14.MapMode = "FlatFace"
sketch14.AttachmentOffset = App.Placement(V(0, 0, -25), App.Rotation())
sketch14.addGeometry(Part.Circle(V(0, 0, 0), V(0, 0, 1), 36.481947), False)
sketch14.addConstraint([
    Sketcher.Constraint("Coincident", 0, 3, -1, 1),
    Sketcher.Constraint("Diameter", 0, Q("72.963895 mm")),
])
pad6 = body2.newObject("PartDesign::Pad", "Pad005")
pad6.Profile = sketch14
pad6.Length = 10
pad6.Reversed = True
doc.recompute()

fillet2 = body2.newObject("PartDesign::Fillet", "Fillet001")
fillet2.Base = (pad6, edges_at(pad6, [(0, 35, -36.482)]))
fillet2.Radius = 3
mirroring.Visibility = False

doc.recompute()
